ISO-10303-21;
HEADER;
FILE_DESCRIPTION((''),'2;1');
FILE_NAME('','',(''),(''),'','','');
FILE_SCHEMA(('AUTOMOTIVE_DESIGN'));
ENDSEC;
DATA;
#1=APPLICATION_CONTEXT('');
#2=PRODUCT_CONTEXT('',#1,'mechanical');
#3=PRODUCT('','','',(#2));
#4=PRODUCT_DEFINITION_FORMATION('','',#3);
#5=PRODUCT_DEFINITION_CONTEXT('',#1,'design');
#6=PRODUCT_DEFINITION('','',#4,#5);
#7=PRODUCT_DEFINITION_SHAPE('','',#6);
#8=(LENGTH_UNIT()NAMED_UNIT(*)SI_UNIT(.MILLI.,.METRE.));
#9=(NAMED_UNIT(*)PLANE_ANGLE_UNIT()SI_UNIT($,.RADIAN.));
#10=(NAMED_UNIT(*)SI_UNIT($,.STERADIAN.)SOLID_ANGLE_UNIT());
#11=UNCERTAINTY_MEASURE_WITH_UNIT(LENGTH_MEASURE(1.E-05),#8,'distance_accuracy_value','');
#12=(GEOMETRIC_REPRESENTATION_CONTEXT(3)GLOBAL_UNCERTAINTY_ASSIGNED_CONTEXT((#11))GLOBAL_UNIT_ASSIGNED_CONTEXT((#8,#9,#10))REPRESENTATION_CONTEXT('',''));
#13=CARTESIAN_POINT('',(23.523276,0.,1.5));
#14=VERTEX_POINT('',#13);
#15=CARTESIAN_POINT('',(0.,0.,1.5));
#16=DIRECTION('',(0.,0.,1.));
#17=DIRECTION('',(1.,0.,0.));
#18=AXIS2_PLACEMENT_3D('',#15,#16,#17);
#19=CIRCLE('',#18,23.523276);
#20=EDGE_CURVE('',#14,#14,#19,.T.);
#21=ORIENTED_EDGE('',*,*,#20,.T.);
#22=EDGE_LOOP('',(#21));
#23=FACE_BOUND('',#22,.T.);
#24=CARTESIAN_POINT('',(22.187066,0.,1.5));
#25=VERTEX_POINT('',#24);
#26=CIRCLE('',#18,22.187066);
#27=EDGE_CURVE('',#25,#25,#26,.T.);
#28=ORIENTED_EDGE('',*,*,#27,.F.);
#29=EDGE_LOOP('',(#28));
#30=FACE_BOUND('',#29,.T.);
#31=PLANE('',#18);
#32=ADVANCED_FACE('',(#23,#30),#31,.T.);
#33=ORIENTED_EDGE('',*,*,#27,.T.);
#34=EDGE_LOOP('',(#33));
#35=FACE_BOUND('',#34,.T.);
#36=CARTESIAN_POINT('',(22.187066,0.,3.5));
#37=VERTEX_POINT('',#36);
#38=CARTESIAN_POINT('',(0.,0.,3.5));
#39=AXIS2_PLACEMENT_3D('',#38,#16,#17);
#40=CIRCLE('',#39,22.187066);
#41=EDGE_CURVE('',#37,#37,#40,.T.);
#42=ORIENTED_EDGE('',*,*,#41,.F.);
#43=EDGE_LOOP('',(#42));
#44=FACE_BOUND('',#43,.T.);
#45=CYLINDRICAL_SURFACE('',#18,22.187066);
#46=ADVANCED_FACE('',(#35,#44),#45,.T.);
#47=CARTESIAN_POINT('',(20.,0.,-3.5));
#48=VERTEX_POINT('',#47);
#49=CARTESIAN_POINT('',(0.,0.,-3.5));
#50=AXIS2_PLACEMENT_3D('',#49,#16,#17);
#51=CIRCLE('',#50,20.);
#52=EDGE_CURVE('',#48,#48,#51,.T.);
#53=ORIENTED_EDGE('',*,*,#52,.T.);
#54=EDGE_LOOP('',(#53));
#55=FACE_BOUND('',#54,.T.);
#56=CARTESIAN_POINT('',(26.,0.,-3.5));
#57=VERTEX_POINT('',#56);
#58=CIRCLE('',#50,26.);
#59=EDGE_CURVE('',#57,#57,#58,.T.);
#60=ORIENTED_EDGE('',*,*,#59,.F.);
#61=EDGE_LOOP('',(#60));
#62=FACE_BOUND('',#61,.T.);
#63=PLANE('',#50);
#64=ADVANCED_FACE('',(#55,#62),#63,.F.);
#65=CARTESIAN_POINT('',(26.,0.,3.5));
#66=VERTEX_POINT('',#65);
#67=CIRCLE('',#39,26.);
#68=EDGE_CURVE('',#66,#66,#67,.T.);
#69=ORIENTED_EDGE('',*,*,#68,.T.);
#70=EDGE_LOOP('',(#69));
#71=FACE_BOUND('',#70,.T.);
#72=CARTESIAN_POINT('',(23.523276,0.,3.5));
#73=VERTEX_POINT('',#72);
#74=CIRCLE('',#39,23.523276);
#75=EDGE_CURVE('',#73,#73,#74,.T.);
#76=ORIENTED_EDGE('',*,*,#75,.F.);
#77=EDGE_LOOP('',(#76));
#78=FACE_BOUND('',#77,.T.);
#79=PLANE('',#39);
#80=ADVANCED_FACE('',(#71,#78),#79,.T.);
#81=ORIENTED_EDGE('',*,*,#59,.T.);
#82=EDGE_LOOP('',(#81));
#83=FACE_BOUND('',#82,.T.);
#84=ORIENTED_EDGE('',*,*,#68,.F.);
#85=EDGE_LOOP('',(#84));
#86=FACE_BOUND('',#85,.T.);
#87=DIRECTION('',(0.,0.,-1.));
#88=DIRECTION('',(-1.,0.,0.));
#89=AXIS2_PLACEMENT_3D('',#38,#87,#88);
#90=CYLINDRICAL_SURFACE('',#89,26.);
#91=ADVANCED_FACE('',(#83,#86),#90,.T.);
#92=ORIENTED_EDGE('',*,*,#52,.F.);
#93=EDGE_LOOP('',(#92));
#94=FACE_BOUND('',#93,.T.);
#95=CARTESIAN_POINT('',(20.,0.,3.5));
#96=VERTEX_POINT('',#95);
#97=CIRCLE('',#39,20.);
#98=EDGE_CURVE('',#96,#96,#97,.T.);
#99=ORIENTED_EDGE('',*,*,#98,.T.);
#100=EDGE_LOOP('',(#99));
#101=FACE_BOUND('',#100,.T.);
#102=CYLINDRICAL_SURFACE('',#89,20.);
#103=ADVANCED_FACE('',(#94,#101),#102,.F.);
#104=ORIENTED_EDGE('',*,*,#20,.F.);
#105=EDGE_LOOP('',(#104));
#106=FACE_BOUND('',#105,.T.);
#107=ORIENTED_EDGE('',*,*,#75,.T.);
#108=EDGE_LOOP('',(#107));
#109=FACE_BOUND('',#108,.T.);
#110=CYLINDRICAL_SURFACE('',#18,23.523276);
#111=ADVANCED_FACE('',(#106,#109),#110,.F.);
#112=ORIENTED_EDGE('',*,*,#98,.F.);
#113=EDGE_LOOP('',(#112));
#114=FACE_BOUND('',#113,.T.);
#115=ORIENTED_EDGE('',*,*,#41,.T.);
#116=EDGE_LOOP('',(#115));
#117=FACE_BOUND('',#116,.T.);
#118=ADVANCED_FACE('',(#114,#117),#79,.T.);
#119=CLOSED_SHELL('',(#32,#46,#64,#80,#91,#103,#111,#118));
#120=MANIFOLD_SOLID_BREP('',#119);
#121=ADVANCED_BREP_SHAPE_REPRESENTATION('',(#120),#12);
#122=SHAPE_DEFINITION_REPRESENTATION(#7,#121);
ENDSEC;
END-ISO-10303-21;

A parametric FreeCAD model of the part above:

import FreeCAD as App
import Part
import Sketcher

V = App.Vector
Q = App.Units.Quantity

doc = App.newDocument("Part")
params = doc.addObject("Spreadsheet::Sheet", "Params")
for row, (alias, value) in enumerate([
    ("sketch1_diameter", "52 mm"),
    ("sketch1_diameter2", "40 mm"),
    ("pad1_length", "7 mm"),
    ("pocket1_length", "2 mm"),
], start=1):
    params.set(f"A{row}", alias)
    params.set(f"B{row}", "=" + value)
    params.setAlias(f"B{row}", alias)

body = doc.addObject("PartDesign::Body", "Body")

sketch1 = body.newObject("Sketcher::SketchObject", "Sketch")
sketch1.AttachmentSupport = (doc.getObject("XY_Plane"), [""])
sketch1.MapMode = "FlatFace"
sketch1.addGeometry([
    Part.Circle(V(0, 0, 0), V(0, 0, 1), 26),
    Part.Circle(V(0, 0, 0), V(0, 0, 1), 20),
], False)
sketch1.addConstraint([
    Sketcher.Constraint("Coincident", 0, 3, -1, 1),
    Sketcher.Constraint("Coincident", 1, 3, -1, 1),
    Sketcher.Constraint("Diameter", 0, Q("52 mm")),
    Sketcher.Constraint("Diameter", 1, Q("40 mm")),
])
sketch1.setExpression("Constraints[2]", "Params.sketch1_diameter")
sketch1.setExpression("Constraints[3]", "Params.sketch1_diameter2")
pad1 = body.newObject("PartDesign::Pad", "Pad")
pad1.Profile = sketch1
pad1.setExpression("Length", "Params.pad1_length")
pad1.Midplane = True

sketch2 = body.newObject("Sketcher::SketchObject", "Sketch001")
sketch2.AttachmentSupport = (doc.getObject("XY_Plane"), [""])
sketch2.MapMode = "FlatFace"
sketch2.AttachmentOffset = App.Placement(V(0, 0, 3.5), App.Rotation())
sketch2.addGeometry([
    Part.Circle(V(0, 0, 0), V(0, 0, 1), 24),
    Part.Circle(V(0, 0, 0), V(0, 0, 1), 22),
], False)
sketch2.addConstraint([
    Sketcher.Constraint("Coincident", 0, 3, -1, 1),
    Sketcher.Constraint("Coincident", 1, 3, -1, 1),
    Sketcher.Constraint("Diameter", 0, Q("47.046552 mm")),
    Sketcher.Constraint("Diameter", 1, Q("44.374132 mm")),
])
pocket1 = body.newObject("PartDesign::Pocket", "Pocket")
pocket1.Profile = sketch2
pocket1.setExpression("Length", "Params.pocket1_length")

doc.recompute()
